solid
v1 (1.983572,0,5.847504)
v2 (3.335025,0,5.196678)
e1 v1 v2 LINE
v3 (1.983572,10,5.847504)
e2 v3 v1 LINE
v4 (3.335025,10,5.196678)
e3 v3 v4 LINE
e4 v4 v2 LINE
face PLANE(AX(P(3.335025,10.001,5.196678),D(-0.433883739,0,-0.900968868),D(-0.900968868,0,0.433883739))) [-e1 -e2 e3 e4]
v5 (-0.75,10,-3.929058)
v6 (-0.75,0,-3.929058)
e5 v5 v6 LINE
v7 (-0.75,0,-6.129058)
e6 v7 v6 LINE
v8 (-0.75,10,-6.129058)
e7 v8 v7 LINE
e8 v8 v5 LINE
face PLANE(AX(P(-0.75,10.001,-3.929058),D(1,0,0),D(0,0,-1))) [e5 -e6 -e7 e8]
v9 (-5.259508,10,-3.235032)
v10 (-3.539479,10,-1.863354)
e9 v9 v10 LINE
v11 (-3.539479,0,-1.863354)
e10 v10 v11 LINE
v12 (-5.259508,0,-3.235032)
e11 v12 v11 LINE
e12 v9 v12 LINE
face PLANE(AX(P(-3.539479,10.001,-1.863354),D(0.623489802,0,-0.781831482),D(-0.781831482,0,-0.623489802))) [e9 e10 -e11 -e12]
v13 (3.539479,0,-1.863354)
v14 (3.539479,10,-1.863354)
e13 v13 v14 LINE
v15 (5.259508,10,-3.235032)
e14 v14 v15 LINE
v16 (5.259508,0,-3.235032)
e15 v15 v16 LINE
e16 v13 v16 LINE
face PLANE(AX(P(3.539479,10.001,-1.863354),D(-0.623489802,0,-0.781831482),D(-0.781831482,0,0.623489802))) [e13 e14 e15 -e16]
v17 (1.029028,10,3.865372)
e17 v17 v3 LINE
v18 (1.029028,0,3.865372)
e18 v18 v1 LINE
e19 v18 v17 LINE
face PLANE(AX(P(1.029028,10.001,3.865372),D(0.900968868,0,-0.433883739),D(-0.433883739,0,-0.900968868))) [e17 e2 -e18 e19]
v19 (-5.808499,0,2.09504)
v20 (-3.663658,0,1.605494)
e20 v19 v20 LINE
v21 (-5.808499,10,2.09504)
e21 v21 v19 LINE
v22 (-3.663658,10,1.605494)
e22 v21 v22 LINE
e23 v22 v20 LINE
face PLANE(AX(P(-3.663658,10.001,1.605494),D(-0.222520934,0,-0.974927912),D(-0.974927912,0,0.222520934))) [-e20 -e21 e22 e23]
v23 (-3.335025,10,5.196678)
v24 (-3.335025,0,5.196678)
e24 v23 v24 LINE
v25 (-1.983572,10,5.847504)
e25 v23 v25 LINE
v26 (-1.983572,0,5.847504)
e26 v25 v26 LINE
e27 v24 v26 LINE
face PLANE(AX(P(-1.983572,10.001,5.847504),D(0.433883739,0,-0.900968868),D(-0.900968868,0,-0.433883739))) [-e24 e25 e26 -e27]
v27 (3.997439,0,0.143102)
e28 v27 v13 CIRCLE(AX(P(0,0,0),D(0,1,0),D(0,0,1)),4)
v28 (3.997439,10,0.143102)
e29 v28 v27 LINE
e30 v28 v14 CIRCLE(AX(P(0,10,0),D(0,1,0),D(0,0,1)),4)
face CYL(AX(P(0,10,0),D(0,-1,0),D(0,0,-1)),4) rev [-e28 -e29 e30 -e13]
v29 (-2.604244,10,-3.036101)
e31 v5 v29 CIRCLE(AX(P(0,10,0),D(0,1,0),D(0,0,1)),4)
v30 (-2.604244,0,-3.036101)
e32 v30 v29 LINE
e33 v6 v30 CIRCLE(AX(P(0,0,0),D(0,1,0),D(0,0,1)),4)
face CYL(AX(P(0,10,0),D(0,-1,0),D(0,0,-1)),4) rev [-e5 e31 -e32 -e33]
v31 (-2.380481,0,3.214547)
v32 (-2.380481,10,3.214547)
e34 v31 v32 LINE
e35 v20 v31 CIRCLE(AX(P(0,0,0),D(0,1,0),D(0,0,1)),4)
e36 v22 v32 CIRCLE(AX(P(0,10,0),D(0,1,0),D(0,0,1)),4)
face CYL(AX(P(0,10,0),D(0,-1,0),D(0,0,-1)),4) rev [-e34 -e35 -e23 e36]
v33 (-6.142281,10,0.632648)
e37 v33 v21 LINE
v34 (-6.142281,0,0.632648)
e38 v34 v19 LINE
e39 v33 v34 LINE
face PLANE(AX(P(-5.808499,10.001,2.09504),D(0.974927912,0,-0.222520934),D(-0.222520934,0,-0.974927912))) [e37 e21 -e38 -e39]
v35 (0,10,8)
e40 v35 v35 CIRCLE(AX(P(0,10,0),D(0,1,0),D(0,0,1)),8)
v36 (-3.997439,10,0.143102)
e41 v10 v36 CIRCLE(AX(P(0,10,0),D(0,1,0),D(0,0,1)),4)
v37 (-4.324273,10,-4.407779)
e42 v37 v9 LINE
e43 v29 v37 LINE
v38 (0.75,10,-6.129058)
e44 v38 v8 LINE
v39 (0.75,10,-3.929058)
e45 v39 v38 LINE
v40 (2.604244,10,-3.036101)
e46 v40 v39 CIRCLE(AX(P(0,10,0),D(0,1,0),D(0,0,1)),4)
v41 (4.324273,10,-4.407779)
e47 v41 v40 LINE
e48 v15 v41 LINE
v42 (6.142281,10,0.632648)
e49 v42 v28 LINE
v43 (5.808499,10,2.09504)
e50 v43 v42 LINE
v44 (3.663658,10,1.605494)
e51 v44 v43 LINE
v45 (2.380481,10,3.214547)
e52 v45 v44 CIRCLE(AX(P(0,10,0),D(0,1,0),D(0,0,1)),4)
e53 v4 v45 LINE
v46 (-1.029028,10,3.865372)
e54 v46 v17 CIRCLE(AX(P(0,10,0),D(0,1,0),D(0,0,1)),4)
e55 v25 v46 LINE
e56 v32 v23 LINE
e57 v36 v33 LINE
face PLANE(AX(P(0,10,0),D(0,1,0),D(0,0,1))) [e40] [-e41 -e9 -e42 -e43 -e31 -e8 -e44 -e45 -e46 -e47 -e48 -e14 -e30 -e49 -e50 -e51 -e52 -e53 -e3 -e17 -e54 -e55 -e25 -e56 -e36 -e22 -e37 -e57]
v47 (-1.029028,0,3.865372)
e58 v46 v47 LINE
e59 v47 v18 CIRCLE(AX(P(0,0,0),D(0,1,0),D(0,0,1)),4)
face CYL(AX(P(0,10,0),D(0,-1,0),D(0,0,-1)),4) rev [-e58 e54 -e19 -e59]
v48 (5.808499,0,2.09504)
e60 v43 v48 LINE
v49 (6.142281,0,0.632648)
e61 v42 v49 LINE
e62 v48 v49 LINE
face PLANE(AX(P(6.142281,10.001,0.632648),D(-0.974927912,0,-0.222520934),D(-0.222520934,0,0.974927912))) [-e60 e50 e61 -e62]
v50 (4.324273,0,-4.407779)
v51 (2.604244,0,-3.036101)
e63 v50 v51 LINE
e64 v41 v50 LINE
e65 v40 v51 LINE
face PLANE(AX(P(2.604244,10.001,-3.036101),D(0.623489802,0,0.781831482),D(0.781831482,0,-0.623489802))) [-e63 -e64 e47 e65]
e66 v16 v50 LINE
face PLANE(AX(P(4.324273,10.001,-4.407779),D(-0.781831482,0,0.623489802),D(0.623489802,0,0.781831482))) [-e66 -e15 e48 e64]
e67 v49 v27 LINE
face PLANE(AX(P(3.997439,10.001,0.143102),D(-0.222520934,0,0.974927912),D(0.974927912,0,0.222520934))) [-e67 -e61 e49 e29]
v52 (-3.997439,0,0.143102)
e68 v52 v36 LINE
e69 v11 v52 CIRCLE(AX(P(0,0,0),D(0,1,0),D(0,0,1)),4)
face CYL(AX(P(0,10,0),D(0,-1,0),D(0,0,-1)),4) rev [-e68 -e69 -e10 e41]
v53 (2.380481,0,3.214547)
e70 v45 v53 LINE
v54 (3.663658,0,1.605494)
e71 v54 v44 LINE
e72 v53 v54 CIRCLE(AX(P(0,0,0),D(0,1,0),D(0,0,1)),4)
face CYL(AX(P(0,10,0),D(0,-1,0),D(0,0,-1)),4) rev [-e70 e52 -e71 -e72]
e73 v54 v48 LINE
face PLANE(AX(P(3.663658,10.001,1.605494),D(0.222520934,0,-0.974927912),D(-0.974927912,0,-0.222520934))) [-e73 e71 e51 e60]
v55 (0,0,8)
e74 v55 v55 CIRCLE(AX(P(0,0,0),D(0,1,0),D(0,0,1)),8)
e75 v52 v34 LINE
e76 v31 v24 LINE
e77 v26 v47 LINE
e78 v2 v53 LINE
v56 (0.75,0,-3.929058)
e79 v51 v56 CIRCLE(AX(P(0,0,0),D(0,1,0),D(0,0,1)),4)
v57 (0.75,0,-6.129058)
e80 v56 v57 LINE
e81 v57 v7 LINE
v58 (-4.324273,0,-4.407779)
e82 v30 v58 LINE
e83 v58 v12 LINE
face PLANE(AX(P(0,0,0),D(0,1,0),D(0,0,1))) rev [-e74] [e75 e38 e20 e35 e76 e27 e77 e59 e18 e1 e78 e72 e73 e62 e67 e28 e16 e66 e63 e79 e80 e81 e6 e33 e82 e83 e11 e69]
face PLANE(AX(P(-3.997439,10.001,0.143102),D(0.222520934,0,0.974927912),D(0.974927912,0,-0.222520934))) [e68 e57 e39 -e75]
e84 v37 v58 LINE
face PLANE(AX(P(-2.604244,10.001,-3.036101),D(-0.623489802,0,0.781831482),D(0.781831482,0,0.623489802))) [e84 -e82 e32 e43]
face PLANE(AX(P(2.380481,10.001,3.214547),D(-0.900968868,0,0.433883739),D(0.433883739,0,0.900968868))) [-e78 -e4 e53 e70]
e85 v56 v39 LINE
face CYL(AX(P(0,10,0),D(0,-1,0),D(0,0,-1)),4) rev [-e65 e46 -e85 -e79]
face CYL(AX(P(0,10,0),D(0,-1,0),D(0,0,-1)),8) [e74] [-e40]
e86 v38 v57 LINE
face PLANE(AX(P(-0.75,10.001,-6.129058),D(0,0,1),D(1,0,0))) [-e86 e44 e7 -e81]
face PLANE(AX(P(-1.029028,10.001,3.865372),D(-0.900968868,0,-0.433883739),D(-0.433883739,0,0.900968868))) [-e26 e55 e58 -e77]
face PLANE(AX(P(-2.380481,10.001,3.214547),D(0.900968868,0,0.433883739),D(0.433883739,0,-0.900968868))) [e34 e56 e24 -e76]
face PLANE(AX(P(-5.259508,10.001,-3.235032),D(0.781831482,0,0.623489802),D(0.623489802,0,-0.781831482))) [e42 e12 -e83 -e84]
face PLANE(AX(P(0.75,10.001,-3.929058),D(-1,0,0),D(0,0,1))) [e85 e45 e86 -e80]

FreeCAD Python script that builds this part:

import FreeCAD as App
import Part
import Sketcher
from FreeCAD import Vector


def add_polygon(sketch, points):
    """Adds a closed chain of lines whose ends are joined by coincident constraints."""
    first, n = sketch.GeometryCount, len(points)
    for a, b in zip(points, points[1:] + points[:1]):
        sketch.addGeometry(Part.LineSegment(App.Vector(*a, 0), App.Vector(*b, 0)), False)
    for i in range(n):
        sketch.addConstraint(Sketcher.Constraint("Coincident", first + i, 2, first + (i + 1) % n, 1))

doc = App.newDocument("Part")
body = doc.addObject("PartDesign::Body", "Body")

sketch1 = doc.addObject("Sketcher::SketchObject", "Sketch")
body.addObject(sketch1)
sketch1.AttachmentSupport = (doc.XZ_Plane, [""])
sketch1.MapMode = "FlatFace"
sketch1.addGeometry([
    Part.Circle(Vector(0, 0, 0), Vector(0, 0, 1), 8),
    Part.Circle(Vector(0, 0, 0), Vector(0, 0, 1), 4),
], False)
sketch1.addConstraint([
    Sketcher.Constraint("Coincident", 0, 3, -1, 1),
    Sketcher.Constraint("Coincident", 1, 3, -1, 1),
    Sketcher.Constraint("Diameter", 0, 16.0),
    Sketcher.Constraint("Diameter", 1, 8.0),
])
pad1 = doc.addObject("PartDesign::Pad", "Pad")
body.addObject(pad1)
pad1.Profile = sketch1
pad1.Length = 10
pad1.Reversed = True

sketch2 = doc.addObject("Sketcher::SketchObject", "Sketch001")
body.addObject(sketch2)
sketch2.AttachmentSupport = (doc.XZ_Plane, [""])
sketch2.MapMode = "FlatFace"
add_polygon(sketch2, [(-0.8, -6.1), (-0.8, -3.9), (0.8, -3.9), (0.8, -6.1)])
sketch2.addConstraint([
    Sketcher.Constraint("Vertical", 0),
    Sketcher.Constraint("Horizontal", 1),
    Sketcher.Constraint("Vertical", 2),
    Sketcher.Constraint("Horizontal", 3),
    Sketcher.Constraint("DistanceX", 1, 1, 1, 2, 1.5),
    Sketcher.Constraint("DistanceY", 0, 1, 0, 2, 2.2),
    Sketcher.Constraint("DistanceX", 0, 2, -1, 1, 0.75),
    Sketcher.Constraint("DistanceY", 0, 2, -1, 1, 3.929058),
])
pocket1 = doc.addObject("PartDesign::Pocket", "Pocket")
body.addObject(pocket1)
pocket1.Profile = sketch2
pocket1.Type = "UpToFirst"

sketch3 = doc.addObject("Sketcher::SketchObject", "Sketch002")
body.addObject(sketch3)
sketch3.AttachmentSupport = (doc.XZ_Plane, [""])
sketch3.MapMode = "FlatFace"
add_polygon(sketch3, [(-2.6, -3), (-4.3, -4.4), (-5.3, -3.2), (-3.5, -1.9)])
sketch3.addConstraint([
    Sketcher.Constraint("Perpendicular", 0, 1),
    Sketcher.Constraint("Perpendicular", 1, 2),
    Sketcher.Constraint("Perpendicular", 2, 3),
    Sketcher.Constraint("Distance", 0, 2.2),
    Sketcher.Constraint("Distance", 1, 1.5),
    Sketcher.Constraint("DistanceY", 3, 2, -1, 1, 3.036101),
    Sketcher.Constraint("DistanceY", 0, 2, -1, 1, 4.407779),
    Sketcher.Constraint("DistanceX", 1, 2, -1, 1, 5.259508),
])
pocket2 = doc.addObject("PartDesign::Pocket", "Pocket001")
body.addObject(pocket2)
pocket2.Profile = sketch3
pocket2.Type = "UpToFirst"

sketch4 = doc.addObject("Sketcher::SketchObject", "Sketch003")
body.addObject(sketch4)
sketch4.AttachmentSupport = (doc.XZ_Plane, [""])
sketch4.MapMode = "FlatFace"
add_polygon(sketch4, [(-4, 0.1), (-6.1, 0.6), (-5.8, 2.1), (-3.7, 1.6)])
sketch4.addConstraint([
    Sketcher.Constraint("Perpendicular", 0, 1),
    Sketcher.Constraint("Perpendicular", 1, 2),
    Sketcher.Constraint("Perpendicular", 2, 3),
    Sketcher.Constraint("Distance", 0, 2.2),
    Sketcher.Constraint("Distance", 1, 1.5),
    Sketcher.Constraint("DistanceX", 1, 2, -1, 1, 5.808499),
    Sketcher.Constraint("DistanceY", -1, 1, 3, 2, 0.143102),
    Sketcher.Constraint("DistanceX", 0, 2, -1, 1, 6.142281),
])
pocket3 = doc.addObject("PartDesign::Pocket", "Pocket002")
body.addObject(pocket3)
pocket3.Profile = sketch4
pocket3.Type = "UpToFirst"

sketch5 = doc.addObject("Sketcher::SketchObject", "Sketch004")
body.addObject(sketch5)
sketch5.AttachmentSupport = (doc.XZ_Plane, [""])
sketch5.MapMode = "FlatFace"
add_polygon(sketch5, [(-2.4, 3.2), (-3.3, 5.2), (-2, 5.8), (-1, 3.9)])
sketch5.addConstraint([
    Sketcher.Constraint("Perpendicular", 0, 1),
    Sketcher.Constraint("Perpendicular", 1, 2),
    Sketcher.Constraint("Perpendicular", 2, 3),
    Sketcher.Constraint("Distance", 0, 2.2),
    Sketcher.Constraint("Distance", 1, 1.5),
    Sketcher.Constraint("DistanceY", -1, 1, 0, 2, 5.196678),
    Sketcher.Constraint("DistanceX", 3, 2, -1, 1, 2.380481),
    Sketcher.Constraint("DistanceY", 2, 2, 1, 2, 1.982132),
])
pocket4 = doc.addObject("PartDesign::Pocket", "Pocket003")
body.addObject(pocket4)
pocket4.Profile = sketch5
pocket4.Type = "UpToFirst"

sketch6 = doc.addObject("Sketcher::SketchObject", "Sketch005")
body.addObject(sketch6)
sketch6.AttachmentSupport = (doc.XZ_Plane, [""])
sketch6.MapMode = "FlatFace"
add_polygon(sketch6, [(1, 3.9), (2, 5.8), (3.3, 5.2), (2.4, 3.2)])
sketch6.addConstraint([
    Sketcher.Constraint("Perpendicular", 0, 1),
    Sketcher.Constraint("Perpendicular", 1, 2),
    Sketcher.Constraint("Perpendicular", 2, 3),
    Sketcher.Constraint("Distance", 0, 2.2),
    Sketcher.Constraint("Distance", 1, 1.5),
    Sketcher.Constraint("DistanceY", -1, 1, 1, 2, 5.196678),
    Sketcher.Constraint("DistanceX", -1, 1, 2, 2, 2.380481),
    Sketcher.Constraint("DistanceY", 2, 2, 1, 2, 1.982132),
])
pocket5 = doc.addObject("PartDesign::Pocket", "Pocket004")
body.addObject(pocket5)
pocket5.Profile = sketch6
pocket5.Type = "UpToFirst"

sketch7 = doc.addObject("Sketcher::SketchObject", "Sketch006")
body.addObject(sketch7)
sketch7.AttachmentSupport = (doc.XZ_Plane, [""])
sketch7.MapMode = "FlatFace"
add_polygon(sketch7, [(3.7, 1.6), (5.8, 2.1), (6.1, 0.6), (4, 0.1)])
sketch7.addConstraint([
    Sketcher.Constraint("Perpendicular", 0, 1),
    Sketcher.Constraint("Perpendicular", 1, 2),
    Sketcher.Constraint("Perpendicular", 2, 3),
    Sketcher.Constraint("Distance", 0, 2.2),
    Sketcher.Constraint("Distance", 1, 1.5),
    Sketcher.Constraint("DistanceX", -1, 1, 0, 2, 5.808499),
    Sketcher.Constraint("DistanceY", -1, 1, 2, 2, 0.143102),
    Sketcher.Constraint("DistanceY", -1, 1, 0, 2, 2.09504),
])
pocket6 = doc.addObject("PartDesign::Pocket", "Pocket005")
body.addObject(pocket6)
pocket6.Profile = sketch7
pocket6.Type = "UpToFirst"

sketch8 = doc.addObject("Sketcher::SketchObject", "Sketch007")
body.addObject(sketch8)
sketch8.AttachmentSupport = (doc.XZ_Plane, [""])
sketch8.MapMode = "FlatFace"
add_polygon(sketch8, [(3.5, -1.9), (5.3, -3.2), (4.3, -4.4), (2.6, -3)])
sketch8.addConstraint([
    Sketcher.Constraint("Perpendicular", 0, 1),
    Sketcher.Constraint("Perpendicular", 1, 2),
    Sketcher.Constraint("Perpendicular", 2, 3),
    Sketcher.Constraint("Distance", 0, 2.2),
    Sketcher.Constraint("Distance", 1, 1.5),
    Sketcher.Constraint("DistanceY", 2, 2, -1, 1, 3.036101),
    Sketcher.Constraint("DistanceX", -1, 1, 0, 2, 5.259508),
    Sketcher.Constraint("DistanceY", 0, 2, -1, 1, 3.235032),
])
pocket7 = doc.addObject("PartDesign::Pocket", "Pocket006")
body.addObject(pocket7)
pocket7.Profile = sketch8
pocket7.Type = "UpToFirst"

doc.recompute()
